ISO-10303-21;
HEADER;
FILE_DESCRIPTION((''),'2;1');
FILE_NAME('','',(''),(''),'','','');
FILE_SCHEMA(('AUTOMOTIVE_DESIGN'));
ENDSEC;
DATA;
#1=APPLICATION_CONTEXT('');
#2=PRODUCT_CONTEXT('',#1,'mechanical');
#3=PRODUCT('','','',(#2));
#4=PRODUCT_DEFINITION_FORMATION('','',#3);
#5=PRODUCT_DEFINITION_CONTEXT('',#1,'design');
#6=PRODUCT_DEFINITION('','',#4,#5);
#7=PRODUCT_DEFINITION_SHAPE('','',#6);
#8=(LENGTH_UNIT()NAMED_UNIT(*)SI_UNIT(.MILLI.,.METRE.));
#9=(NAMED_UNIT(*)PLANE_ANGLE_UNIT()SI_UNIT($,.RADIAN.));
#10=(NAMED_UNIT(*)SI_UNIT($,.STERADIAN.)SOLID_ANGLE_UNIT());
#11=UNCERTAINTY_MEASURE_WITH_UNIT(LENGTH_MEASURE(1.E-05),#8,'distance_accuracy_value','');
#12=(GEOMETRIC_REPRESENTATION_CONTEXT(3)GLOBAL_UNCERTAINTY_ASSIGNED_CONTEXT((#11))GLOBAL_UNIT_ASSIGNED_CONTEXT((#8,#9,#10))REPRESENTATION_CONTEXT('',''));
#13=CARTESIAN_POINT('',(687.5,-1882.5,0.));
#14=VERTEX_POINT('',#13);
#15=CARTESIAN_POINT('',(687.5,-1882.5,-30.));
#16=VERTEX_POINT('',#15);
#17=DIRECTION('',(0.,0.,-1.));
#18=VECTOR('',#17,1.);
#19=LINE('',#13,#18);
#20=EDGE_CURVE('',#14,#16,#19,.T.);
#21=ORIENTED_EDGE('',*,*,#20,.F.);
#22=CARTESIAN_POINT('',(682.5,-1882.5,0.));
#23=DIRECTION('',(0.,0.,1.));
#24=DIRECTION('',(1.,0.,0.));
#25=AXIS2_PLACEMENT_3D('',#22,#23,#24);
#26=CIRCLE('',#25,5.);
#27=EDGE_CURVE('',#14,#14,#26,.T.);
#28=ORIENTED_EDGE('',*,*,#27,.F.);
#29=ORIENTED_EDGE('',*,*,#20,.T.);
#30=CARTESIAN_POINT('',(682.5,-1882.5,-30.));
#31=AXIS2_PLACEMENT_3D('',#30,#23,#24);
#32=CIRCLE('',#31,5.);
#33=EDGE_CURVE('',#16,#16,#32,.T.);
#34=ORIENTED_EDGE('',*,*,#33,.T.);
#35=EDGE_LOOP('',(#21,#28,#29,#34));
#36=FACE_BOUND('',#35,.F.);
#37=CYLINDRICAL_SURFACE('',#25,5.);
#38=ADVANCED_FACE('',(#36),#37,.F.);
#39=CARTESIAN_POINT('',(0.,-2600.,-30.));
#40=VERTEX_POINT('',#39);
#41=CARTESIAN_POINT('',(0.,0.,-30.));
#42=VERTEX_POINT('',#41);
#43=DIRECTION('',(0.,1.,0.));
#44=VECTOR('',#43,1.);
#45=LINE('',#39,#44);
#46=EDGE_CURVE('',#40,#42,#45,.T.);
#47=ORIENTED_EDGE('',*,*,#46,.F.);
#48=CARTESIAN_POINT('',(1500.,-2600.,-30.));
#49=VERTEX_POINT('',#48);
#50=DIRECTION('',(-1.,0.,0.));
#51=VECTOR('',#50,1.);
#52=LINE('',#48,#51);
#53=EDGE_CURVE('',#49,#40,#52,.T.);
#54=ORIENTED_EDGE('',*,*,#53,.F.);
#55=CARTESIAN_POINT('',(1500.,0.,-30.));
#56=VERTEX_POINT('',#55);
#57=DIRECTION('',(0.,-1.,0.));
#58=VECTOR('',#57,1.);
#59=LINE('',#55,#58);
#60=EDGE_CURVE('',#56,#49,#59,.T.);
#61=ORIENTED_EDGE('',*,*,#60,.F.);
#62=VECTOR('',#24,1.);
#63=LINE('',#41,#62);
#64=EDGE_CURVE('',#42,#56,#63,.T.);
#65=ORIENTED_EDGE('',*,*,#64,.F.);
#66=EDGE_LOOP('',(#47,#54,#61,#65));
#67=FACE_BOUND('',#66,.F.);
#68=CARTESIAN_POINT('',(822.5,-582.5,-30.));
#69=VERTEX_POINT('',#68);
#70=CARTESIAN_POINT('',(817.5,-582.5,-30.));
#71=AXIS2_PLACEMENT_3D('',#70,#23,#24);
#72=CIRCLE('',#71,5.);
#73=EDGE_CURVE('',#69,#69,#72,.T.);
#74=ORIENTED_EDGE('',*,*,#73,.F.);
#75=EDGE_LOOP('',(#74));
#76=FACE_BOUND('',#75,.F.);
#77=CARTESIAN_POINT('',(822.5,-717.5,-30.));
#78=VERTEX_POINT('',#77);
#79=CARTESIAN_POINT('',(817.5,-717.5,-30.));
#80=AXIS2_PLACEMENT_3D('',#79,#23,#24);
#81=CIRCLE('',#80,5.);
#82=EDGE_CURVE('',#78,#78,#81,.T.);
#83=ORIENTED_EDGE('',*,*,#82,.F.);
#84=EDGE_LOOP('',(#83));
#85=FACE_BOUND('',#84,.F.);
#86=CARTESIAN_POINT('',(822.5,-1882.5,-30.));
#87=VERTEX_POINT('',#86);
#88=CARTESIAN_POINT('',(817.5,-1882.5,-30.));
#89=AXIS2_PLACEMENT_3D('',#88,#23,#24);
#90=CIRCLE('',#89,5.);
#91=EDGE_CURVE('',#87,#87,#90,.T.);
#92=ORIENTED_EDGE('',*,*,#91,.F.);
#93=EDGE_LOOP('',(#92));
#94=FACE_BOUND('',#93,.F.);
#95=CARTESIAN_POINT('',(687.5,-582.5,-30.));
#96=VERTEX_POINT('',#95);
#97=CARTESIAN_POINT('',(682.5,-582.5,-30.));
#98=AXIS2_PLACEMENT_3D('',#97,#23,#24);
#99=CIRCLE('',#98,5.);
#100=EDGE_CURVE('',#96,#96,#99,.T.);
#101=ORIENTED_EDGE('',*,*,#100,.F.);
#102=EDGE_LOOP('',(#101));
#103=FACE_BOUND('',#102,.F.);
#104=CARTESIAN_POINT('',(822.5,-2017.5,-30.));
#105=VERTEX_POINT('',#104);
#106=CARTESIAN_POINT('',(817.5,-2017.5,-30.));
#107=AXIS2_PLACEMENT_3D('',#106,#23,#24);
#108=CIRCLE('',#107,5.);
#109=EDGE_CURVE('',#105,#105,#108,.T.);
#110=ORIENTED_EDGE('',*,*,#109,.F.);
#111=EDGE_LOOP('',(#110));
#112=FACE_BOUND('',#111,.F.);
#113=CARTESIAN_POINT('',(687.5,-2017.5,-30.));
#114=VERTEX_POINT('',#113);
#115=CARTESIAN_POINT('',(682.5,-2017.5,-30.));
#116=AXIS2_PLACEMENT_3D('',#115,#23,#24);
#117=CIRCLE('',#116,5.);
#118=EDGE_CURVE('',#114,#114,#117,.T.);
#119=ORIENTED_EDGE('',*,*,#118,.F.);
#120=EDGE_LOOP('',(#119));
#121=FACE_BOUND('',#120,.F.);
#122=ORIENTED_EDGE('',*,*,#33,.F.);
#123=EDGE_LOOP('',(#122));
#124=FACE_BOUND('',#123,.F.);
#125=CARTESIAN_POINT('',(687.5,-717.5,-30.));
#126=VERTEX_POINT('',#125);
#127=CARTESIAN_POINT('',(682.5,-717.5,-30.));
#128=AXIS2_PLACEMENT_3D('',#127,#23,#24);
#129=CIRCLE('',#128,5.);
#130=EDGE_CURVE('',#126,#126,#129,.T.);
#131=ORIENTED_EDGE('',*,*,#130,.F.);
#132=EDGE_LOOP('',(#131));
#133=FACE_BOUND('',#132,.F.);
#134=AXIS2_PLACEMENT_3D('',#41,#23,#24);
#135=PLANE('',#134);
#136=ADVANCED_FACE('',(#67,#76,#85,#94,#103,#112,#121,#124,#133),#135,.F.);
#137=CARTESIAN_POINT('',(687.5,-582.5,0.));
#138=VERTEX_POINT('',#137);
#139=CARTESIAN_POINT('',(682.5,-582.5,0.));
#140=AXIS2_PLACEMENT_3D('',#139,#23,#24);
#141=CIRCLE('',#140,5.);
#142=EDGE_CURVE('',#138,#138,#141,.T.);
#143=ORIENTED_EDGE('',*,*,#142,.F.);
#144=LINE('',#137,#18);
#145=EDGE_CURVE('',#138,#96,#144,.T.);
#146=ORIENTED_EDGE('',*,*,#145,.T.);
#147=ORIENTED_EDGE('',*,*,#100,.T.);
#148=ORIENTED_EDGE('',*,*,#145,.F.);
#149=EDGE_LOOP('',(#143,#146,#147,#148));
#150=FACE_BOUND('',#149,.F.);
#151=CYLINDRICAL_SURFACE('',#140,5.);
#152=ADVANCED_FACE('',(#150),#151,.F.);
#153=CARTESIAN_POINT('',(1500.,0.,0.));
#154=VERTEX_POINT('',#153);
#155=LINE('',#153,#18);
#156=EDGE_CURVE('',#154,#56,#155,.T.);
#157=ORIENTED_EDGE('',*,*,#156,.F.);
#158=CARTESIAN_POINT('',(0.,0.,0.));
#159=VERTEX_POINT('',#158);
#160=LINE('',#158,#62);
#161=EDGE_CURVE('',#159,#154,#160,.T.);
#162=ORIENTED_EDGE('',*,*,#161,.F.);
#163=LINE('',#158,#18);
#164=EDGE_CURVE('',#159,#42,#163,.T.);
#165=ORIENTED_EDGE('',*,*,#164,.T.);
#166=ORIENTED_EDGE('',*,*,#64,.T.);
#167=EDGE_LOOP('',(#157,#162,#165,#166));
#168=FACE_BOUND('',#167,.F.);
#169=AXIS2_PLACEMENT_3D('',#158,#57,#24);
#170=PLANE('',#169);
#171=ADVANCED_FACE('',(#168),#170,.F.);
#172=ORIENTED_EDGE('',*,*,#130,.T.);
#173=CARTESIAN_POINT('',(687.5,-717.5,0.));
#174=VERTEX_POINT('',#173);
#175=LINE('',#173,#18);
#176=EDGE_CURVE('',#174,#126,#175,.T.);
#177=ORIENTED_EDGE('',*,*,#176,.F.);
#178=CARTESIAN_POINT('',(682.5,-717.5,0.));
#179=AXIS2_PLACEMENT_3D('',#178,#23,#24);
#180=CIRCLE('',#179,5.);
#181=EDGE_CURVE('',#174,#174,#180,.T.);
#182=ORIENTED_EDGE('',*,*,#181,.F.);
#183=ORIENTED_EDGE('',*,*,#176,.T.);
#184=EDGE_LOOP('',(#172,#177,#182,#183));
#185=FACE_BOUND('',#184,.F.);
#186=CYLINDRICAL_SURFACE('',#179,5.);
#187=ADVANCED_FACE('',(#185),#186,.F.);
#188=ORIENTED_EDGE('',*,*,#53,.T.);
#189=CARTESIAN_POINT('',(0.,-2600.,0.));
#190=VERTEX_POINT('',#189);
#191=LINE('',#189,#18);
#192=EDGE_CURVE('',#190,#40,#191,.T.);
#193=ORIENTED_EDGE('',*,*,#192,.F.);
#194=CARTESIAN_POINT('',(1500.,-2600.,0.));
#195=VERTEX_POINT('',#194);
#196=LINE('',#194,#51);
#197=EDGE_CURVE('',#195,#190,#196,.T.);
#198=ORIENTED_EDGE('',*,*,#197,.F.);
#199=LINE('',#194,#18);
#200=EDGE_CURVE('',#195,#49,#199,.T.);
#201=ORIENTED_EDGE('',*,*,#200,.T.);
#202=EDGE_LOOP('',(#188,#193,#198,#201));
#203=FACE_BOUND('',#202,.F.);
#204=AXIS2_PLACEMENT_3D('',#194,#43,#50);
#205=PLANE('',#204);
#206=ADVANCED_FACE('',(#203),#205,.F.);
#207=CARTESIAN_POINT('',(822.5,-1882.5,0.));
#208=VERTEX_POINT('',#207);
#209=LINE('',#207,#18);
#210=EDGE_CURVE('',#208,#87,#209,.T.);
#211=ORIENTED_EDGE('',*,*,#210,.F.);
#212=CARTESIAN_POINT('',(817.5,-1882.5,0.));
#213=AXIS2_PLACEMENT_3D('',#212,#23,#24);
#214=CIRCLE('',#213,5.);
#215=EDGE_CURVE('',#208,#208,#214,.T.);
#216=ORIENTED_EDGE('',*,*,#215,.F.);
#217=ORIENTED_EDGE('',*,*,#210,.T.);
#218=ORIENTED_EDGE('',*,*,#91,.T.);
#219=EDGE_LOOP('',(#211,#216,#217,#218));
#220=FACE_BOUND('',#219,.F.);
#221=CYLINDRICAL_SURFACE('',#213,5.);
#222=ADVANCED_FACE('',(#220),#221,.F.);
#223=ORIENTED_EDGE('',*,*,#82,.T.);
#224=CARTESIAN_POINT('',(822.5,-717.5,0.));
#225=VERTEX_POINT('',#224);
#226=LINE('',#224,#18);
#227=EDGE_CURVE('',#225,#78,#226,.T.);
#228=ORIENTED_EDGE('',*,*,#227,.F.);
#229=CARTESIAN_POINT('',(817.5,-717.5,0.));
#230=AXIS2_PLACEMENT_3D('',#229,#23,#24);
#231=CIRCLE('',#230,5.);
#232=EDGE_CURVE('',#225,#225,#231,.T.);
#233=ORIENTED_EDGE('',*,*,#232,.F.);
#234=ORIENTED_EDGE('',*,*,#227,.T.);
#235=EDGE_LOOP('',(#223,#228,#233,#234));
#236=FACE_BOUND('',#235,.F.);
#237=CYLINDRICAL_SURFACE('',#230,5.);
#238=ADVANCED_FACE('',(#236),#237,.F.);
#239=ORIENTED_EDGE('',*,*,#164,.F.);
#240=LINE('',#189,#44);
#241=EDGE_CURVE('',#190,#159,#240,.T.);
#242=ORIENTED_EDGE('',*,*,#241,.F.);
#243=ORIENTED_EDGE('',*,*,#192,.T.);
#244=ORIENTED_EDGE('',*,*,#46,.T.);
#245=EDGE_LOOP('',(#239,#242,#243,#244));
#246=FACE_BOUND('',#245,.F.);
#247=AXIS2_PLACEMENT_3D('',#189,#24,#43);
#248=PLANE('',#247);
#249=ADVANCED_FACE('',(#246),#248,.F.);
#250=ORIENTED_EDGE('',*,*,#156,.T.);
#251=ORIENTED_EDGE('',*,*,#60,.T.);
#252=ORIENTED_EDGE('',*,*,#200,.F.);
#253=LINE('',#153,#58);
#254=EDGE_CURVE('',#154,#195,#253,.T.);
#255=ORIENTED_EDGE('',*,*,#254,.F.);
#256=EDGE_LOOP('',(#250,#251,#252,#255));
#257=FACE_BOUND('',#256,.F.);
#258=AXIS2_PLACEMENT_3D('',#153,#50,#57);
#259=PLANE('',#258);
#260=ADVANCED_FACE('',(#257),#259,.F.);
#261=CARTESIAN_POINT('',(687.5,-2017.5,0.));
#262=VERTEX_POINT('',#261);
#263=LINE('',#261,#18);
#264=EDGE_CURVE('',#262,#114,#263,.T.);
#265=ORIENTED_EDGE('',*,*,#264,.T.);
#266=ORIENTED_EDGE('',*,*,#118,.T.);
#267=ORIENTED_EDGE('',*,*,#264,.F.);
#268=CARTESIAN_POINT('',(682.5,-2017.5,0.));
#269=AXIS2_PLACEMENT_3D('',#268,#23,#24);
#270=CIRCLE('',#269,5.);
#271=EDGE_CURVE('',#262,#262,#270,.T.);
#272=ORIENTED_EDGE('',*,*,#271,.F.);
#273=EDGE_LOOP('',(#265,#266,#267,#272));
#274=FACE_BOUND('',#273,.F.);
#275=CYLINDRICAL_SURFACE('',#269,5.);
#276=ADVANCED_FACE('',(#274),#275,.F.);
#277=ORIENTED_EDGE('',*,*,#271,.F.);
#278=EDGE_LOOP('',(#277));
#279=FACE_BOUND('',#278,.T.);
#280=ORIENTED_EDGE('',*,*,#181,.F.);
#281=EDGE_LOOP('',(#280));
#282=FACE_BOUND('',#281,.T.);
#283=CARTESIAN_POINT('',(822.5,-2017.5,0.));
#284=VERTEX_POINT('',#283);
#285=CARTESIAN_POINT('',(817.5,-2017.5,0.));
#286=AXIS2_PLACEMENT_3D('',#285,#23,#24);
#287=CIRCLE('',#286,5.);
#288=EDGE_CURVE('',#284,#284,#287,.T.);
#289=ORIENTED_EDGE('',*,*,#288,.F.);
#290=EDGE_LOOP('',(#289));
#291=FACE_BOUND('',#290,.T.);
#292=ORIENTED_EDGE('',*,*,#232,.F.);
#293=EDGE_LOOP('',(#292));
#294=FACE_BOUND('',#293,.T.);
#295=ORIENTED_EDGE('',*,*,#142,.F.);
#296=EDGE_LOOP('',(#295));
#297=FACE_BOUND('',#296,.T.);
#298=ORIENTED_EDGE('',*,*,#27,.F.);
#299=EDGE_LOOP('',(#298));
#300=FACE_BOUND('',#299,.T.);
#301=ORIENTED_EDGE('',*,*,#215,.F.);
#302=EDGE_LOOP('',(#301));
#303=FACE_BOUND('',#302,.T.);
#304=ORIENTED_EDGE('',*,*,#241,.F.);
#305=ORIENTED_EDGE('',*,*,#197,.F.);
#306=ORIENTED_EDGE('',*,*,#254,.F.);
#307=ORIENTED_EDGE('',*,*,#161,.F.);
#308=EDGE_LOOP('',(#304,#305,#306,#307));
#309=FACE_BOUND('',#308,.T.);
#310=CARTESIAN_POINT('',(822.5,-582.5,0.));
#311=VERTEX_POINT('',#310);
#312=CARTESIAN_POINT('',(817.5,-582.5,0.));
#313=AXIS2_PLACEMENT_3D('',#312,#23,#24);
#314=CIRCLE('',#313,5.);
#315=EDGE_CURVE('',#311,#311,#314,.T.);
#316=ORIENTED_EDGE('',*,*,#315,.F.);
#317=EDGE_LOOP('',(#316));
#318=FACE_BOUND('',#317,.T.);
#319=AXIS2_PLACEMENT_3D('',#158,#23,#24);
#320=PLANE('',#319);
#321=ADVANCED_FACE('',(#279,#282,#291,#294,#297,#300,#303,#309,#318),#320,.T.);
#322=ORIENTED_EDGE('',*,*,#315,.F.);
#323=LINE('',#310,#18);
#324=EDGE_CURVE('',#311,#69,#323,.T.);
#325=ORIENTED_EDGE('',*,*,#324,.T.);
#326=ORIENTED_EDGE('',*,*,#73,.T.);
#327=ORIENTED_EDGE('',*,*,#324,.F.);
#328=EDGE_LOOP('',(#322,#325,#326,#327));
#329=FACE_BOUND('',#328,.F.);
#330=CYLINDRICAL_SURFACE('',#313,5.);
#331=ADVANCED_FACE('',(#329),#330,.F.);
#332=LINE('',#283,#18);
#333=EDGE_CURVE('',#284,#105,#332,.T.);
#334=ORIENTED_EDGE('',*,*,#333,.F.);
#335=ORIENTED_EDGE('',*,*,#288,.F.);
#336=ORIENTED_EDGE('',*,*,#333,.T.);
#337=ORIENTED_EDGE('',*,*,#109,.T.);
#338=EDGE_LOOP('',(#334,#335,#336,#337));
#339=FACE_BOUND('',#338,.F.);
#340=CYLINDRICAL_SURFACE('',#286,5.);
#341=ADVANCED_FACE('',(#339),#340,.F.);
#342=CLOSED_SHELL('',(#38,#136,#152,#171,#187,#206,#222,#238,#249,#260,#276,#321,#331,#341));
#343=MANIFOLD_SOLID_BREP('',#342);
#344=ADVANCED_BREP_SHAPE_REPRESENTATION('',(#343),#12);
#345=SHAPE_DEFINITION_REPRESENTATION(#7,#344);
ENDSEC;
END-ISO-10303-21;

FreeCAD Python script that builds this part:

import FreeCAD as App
import Part
import Sketcher
from FreeCAD import Vector
Q = App.Units.Quantity


def add_polygon(sketch, points):
    """Adds a closed chain of lines whose ends are joined by coincident constraints."""
    first, n = sketch.GeometryCount, len(points)
    for a, b in zip(points, points[1:] + points[:1]):
        sketch.addGeometry(Part.LineSegment(App.Vector(*a, 0), App.Vector(*b, 0)), False)
    for i in range(n):
        sketch.addConstraint(Sketcher.Constraint("Coincident", first + i, 2, first + (i + 1) % n, 1))

doc = App.newDocument("Part")
body = doc.addObject("PartDesign::Body", "Body")

# Sketch on XY plane
sketch1 = body.newObject("Sketcher::SketchObject", "Sketch")
sketch1.AttachmentSupport = (doc.getObject("XY_Plane"), [""])
sketch1.MapMode = "FlatFace"
add_polygon(sketch1, [(1500, 0), (0, 0), (0, -2600), (1500, -2600)])  # lines 0-3
sketch1.addGeometry(Part.Circle(Vector(682.5, -2017.5, 0), Vector(0, 0, 1), 5), False)  # 4
sketch1.addGeometry(Part.Circle(Vector(682.5, -1882.5, 0), Vector(0, 0, 1), 5), False)  # 5
sketch1.addGeometry(Part.Circle(Vector(817.5, -2017.5, 0), Vector(0, 0, 1), 5), False)  # 6
sketch1.addGeometry(Part.Circle(Vector(817.5, -1882.5, 0), Vector(0, 0, 1), 5), False)  # 7
sketch1.addGeometry(Part.Circle(Vector(682.5, -717.5, 0), Vector(0, 0, 1), 5), False)  # 8
sketch1.addGeometry(Part.Circle(Vector(682.5, -582.5, 0), Vector(0, 0, 1), 5), False)  # 9
sketch1.addGeometry(Part.Circle(Vector(817.5, -717.5, 0), Vector(0, 0, 1), 5), False)  # 10
sketch1.addGeometry(Part.Circle(Vector(817.5, -582.5, 0), Vector(0, 0, 1), 5), False)  # 11
sketch1.addConstraint([
    Sketcher.Constraint("Horizontal", 0),
    Sketcher.Constraint("Vertical", 1),
    Sketcher.Constraint("Horizontal", 2),
    Sketcher.Constraint("Vertical", 3),
    Sketcher.Constraint("Coincident", 0, 2, -1, 1),
    Sketcher.Constraint("Equal", 4, 5),
    Sketcher.Constraint("Equal", 5, 6),
    Sketcher.Constraint("Equal", 6, 7),
    Sketcher.Constraint("Equal", 7, 8),
    Sketcher.Constraint("Equal", 8, 9),
    Sketcher.Constraint("Equal", 9, 10),
    Sketcher.Constraint("Equal", 10, 11),
    Sketcher.Constraint("Horizontal", 4, 3, 6, 3),
    Sketcher.Constraint("Horizontal", 5, 3, 7, 3),
    Sketcher.Constraint("Horizontal", 8, 3, 10, 3),
    Sketcher.Constraint("Horizontal", 9, 3, 11, 3),
    Sketcher.Constraint("Vertical", 4, 3, 5, 3),
    Sketcher.Constraint("Vertical", 6, 3, 7, 3),
    Sketcher.Constraint("Vertical", 5, 3, 8, 3),
    Sketcher.Constraint("Vertical", 8, 3, 9, 3),
    Sketcher.Constraint("Vertical", 7, 3, 10, 3),
    Sketcher.Constraint("Vertical", 10, 3, 11, 3),
    Sketcher.Constraint("Diameter", 4, Q("10 mm")),
    Sketcher.Constraint("DistanceX", 0, 2, 0, 1, Q("1500 mm")),
    Sketcher.Constraint("DistanceY", 1, 2, 1, 1, Q("2600 mm")),
    Sketcher.Constraint("DistanceY", 4, 3, 5, 3, Q("135 mm")),
    Sketcher.Constraint("DistanceX", 4, 3, 6, 3, Q("135 mm")),
    Sketcher.Constraint("DistanceY", 8, 3, 9, 3, Q("135 mm")),
    Sketcher.Constraint("DistanceY", 5, 3, 8, 3, Q("1165 mm")),
    Sketcher.Constraint("DistanceX", -1, 1, 4, 3, Q("682.5 mm")),
    Sketcher.Constraint("DistanceY", 4, 3, -1, 1, Q("2017.5 mm")),
])
pad1 = body.newObject("PartDesign::Pad", "Pad")
pad1.Profile = sketch1
pad1.Length = 30
pad1.Reversed = True

doc.recompute()
